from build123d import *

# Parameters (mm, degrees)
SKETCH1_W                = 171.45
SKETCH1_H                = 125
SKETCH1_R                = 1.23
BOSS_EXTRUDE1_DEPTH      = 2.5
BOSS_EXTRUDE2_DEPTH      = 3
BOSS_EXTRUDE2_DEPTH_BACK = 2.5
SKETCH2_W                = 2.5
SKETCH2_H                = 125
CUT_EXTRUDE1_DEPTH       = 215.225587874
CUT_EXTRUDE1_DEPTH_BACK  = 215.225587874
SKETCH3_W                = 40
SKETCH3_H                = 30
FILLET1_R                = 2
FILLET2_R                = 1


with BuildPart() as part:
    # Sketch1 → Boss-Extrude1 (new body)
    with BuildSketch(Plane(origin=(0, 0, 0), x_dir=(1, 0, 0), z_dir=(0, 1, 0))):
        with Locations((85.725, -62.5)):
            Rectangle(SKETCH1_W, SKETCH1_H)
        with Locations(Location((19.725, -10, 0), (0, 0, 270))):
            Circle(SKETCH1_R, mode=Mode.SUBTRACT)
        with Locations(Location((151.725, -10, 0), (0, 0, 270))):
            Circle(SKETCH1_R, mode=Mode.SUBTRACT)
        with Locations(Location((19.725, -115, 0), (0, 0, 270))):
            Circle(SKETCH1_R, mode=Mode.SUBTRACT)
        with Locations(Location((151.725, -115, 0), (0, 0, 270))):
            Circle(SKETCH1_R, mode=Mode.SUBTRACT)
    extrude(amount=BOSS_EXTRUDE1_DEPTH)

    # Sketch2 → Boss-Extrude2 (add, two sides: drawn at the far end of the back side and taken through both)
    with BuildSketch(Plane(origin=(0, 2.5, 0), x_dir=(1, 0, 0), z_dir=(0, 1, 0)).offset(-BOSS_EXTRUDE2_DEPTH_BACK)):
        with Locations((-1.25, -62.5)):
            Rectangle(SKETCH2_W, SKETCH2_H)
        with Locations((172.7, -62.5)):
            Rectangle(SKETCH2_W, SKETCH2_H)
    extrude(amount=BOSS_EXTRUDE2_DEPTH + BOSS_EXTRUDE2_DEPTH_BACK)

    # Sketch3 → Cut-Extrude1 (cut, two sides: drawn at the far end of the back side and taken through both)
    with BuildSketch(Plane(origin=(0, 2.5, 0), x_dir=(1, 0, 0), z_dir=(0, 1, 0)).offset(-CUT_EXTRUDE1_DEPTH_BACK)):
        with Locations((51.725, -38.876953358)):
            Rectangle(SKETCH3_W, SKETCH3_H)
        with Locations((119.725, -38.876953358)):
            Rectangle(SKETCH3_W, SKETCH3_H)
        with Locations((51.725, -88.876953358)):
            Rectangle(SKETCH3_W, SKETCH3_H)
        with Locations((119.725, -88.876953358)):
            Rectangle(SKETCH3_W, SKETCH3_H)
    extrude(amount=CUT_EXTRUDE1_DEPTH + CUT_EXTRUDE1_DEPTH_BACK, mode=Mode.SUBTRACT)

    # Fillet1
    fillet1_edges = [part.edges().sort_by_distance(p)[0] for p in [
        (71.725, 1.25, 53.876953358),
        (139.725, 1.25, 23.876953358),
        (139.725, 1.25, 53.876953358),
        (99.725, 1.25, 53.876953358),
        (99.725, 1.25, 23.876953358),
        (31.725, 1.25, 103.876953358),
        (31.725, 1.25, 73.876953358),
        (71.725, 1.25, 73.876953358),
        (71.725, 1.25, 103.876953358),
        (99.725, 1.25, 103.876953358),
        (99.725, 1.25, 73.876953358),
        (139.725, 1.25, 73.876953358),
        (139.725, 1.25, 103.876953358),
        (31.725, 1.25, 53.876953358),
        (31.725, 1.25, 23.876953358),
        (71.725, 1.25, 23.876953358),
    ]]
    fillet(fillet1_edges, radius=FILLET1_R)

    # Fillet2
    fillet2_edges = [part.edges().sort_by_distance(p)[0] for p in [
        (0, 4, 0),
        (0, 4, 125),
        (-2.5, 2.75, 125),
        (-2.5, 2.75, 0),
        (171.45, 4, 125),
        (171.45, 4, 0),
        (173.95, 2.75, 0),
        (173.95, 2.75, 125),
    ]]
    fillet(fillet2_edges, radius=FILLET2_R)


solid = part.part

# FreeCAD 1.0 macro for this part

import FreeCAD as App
import Part
import Sketcher

V = App.Vector
Q = App.Units.Quantity


def edges_at(feature, points):
    """Names of the edges that pass closest to the given points."""
    edges = feature.Shape.Edges
    near = lambda p: min(range(len(edges)), key=lambda i: edges[i].distToShape(Part.Vertex(*p))[0])
    return sorted({f"Edge{near(p) + 1}" for p in points})

doc = App.newDocument("Part")
body = doc.addObject("PartDesign::Body", "Body")

# Sketch on XZ plane
sketch1 = body.newObject("Sketcher::SketchObject", "Sketch")
sketch1.AttachmentSupport = (doc.getObject("XZ_Plane"), [""])
sketch1.MapMode = "FlatFace"
sketch1.addGeometry(Part.LineSegment(V(0, 0, 0), V(0, 125, 0)), False)
sketch1.addGeometry(Part.LineSegment(V(0, 125, 0), V(171.4, 125, 0)), False)
sketch1.addGeometry(Part.LineSegment(V(171.4, 125, 0), V(171.4, 0, 0)), False)
sketch1.addGeometry(Part.LineSegment(V(171.4, 0, 0), V(0, 0, 0)), False)
sketch1.addGeometry(Part.Circle(V(19.7, 115, 0), V(0, 0, 1), 1.2), False)
sketch1.addGeometry(Part.Circle(V(151.7, 115, 0), V(0, 0, 1), 1.2), False)
sketch1.addGeometry(Part.Circle(V(19.7, 10, 0), V(0, 0, 1), 1.2), False)
sketch1.addGeometry(Part.Circle(V(151.7, 10, 0), V(0, 0, 1), 1.2), False)
sketch1.addConstraint(Sketcher.Constraint("Coincident", 0, 2, 1, 1))
sketch1.addConstraint(Sketcher.Constraint("Coincident", 1, 2, 2, 1))
sketch1.addConstraint(Sketcher.Constraint("Coincident", 2, 2, 3, 1))
sketch1.addConstraint(Sketcher.Constraint("Coincident", 3, 2, 0, 1))
sketch1.addConstraint(Sketcher.Constraint("Vertical", 0))
sketch1.addConstraint(Sketcher.Constraint("Horizontal", 1))
sketch1.addConstraint(Sketcher.Constraint("Vertical", 2))
sketch1.addConstraint(Sketcher.Constraint("Horizontal", 3))
sketch1.addConstraint(Sketcher.Constraint("Coincident", 3, 2, -1, 1))
sketch1.addConstraint(Sketcher.Constraint("Equal", 4, 5))
sketch1.addConstraint(Sketcher.Constraint("Equal", 5, 6))
sketch1.addConstraint(Sketcher.Constraint("Equal", 6, 7))
sketch1.addConstraint(Sketcher.Constraint("Horizontal", 4, 3, 5, 3))
sketch1.addConstraint(Sketcher.Constraint("Horizontal", 6, 3, 7, 3))
sketch1.addConstraint(Sketcher.Constraint("Vertical", 4, 3, 6, 3))
sketch1.addConstraint(Sketcher.Constraint("Vertical", 5, 3, 7, 3))
sketch1.addConstraint(Sketcher.Constraint("Diameter", 4, Q("2.46 mm")))
sketch1.addConstraint(Sketcher.Constraint("DistanceY", 0, 1, 0, 2, Q("125 mm")))
sketch1.addConstraint(Sketcher.Constraint("DistanceY", -1, 1, 4, 3, Q("115 mm")))
sketch1.addConstraint(Sketcher.Constraint("DistanceY", -1, 1, 6, 3, Q("10 mm")))
sketch1.addConstraint(Sketcher.Constraint("DistanceX", 4, 3, 5, 3, Q("132 mm")))
sketch1.addConstraint(Sketcher.Constraint("DistanceX", 1, 1, 1, 2, Q("171.45 mm")))
sketch1.addConstraint(Sketcher.Constraint("DistanceX", -1, 1, 4, 3, Q("19.725 mm")))
pad1 = body.newObject("PartDesign::Pad", "Pad")
pad1.Profile = sketch1
pad1.Length = 2.5
pad1.Reversed = True

# Sketch on XZ plane
sketch2 = body.newObject("Sketcher::SketchObject", "Sketch001")
sketch2.AttachmentSupport = (doc.getObject("XZ_Plane"), [""])
sketch2.MapMode = "FlatFace"
sketch2.AttachmentOffset = App.Placement(V(0, 0, -2.5), App.Rotation())
sketch2.addGeometry(Part.LineSegment(V(-2.5, 0, 0), V(-2.5, 125, 0)), False)
sketch2.addGeometry(Part.LineSegment(V(-2.5, 125, 0), V(0, 125, 0)), False)
sketch2.addGeometry(Part.LineSegment(V(0, 125, 0), V(0, 0, 0)), False)
sketch2.addGeometry(Part.LineSegment(V(0, 0, 0), V(-2.5, 0, 0)), False)
sketch2.addGeometry(Part.LineSegment(V(171.4, 0, 0), V(171.4, 125, 0)), False)
sketch2.addGeometry(Part.LineSegment(V(171.4, 125, 0), V(173.9, 125, 0)), False)
sketch2.addGeometry(Part.LineSegment(V(173.9, 125, 0), V(173.9, 0, 0)), False)
sketch2.addGeometry(Part.LineSegment(V(173.9, 0, 0), V(171.4, 0, 0)), False)
sketch2.addConstraint(Sketcher.Constraint("Coincident", 0, 2, 1, 1))
sketch2.addConstraint(Sketcher.Constraint("Coincident", 1, 2, 2, 1))
sketch2.addConstraint(Sketcher.Constraint("Coincident", 2, 2, 3, 1))
sketch2.addConstraint(Sketcher.Constraint("Coincident", 3, 2, 0, 1))
sketch2.addConstraint(Sketcher.Constraint("Coincident", 4, 2, 5, 1))
sketch2.addConstraint(Sketcher.Constraint("Coincident", 5, 2, 6, 1))
sketch2.addConstraint(Sketcher.Constraint("Coincident", 6, 2, 7, 1))
sketch2.addConstraint(Sketcher.Constraint("Coincident", 7, 2, 4, 1))
sketch2.addConstraint(Sketcher.Constraint("Vertical", 0))
sketch2.addConstraint(Sketcher.Constraint("Horizontal", 1))
sketch2.addConstraint(Sketcher.Constraint("Vertical", 2))
sketch2.addConstraint(Sketcher.Constraint("Horizontal", 3))
sketch2.addConstraint(Sketcher.Constraint("Vertical", 4))
sketch2.addConstraint(Sketcher.Constraint("Horizontal", 5))
sketch2.addConstraint(Sketcher.Constraint("Vertical", 6))
sketch2.addConstraint(Sketcher.Constraint("Horizontal", 7))
sketch2.addConstraint(Sketcher.Constraint("Coincident", 2, 2, -1, 1))
sketch2.addConstraint(Sketcher.Constraint("PointOnObject", 6, 2, -1))
sketch2.addConstraint(Sketcher.Constraint("Horizontal", 1, 2, 4, 2))
sketch2.addConstraint(Sketcher.Constraint("Equal", 3, 5))
sketch2.addConstraint(Sketcher.Constraint("DistanceY", 0, 1, 0, 2, Q("125 mm")))
sketch2.addConstraint(Sketcher.Constraint("DistanceX", 1, 1, 1, 2, Q("2.5 mm")))
sketch2.addConstraint(Sketcher.Constraint("DistanceX", -1, 1, 4, 2, Q("171.45 mm")))
pad2 = body.newObject("PartDesign::Pad", "Pad001")
pad2.Profile = sketch2
pad2.Type = "TwoLengths"
pad2.Length = 3
pad2.Length2 = 2.5
pad2.Reversed = True

# Sketch on XZ plane
sketch3 = body.newObject("Sketcher::SketchObject", "Sketch002")
sketch3.AttachmentSupport = (doc.getObject("XZ_Plane"), [""])
sketch3.MapMode = "FlatFace"
sketch3.AttachmentOffset = App.Placement(V(0, 0, -2.5), App.Rotation())
sketch3.addGeometry(Part.LineSegment(V(32, 24, 0), V(32, 54, 0)), False)
sketch3.addGeometry(Part.LineSegment(V(32, 54, 0), V(72, 54, 0)), False)
sketch3.addGeometry(Part.LineSegment(V(72, 54, 0), V(72, 24, 0)), False)
sketch3.addGeometry(Part.LineSegment(V(72, 24, 0), V(32, 24, 0)), False)
sketch3.addGeometry(Part.LineSegment(V(100, 24, 0), V(100, 54, 0)), False)
sketch3.addGeometry(Part.LineSegment(V(100, 54, 0), V(140, 54, 0)), False)
sketch3.addGeometry(Part.LineSegment(V(140, 54, 0), V(140, 24, 0)), False)
sketch3.addGeometry(Part.LineSegment(V(140, 24, 0), V(100, 24, 0)), False)
sketch3.addGeometry(Part.LineSegment(V(32, 74, 0), V(32, 104, 0)), False)
sketch3.addGeometry(Part.LineSegment(V(32, 104, 0), V(72, 104, 0)), False)
sketch3.addGeometry(Part.LineSegment(V(72, 104, 0), V(72, 74, 0)), False)
sketch3.addGeometry(Part.LineSegment(V(72, 74, 0), V(32, 74, 0)), False)
sketch3.addGeometry(Part.LineSegment(V(100, 74, 0), V(100, 104, 0)), False)
sketch3.addGeometry(Part.LineSegment(V(100, 104, 0), V(140, 104, 0)), False)
sketch3.addGeometry(Part.LineSegment(V(140, 104, 0), V(140, 74, 0)), False)
sketch3.addGeometry(Part.LineSegment(V(140, 74, 0), V(100, 74, 0)), False)
sketch3.addConstraint(Sketcher.Constraint("Coincident", 0, 2, 1, 1))
sketch3.addConstraint(Sketcher.Constraint("Coincident", 1, 2, 2, 1))
sketch3.addConstraint(Sketcher.Constraint("Coincident", 2, 2, 3, 1))
sketch3.addConstraint(Sketcher.Constraint("Coincident", 3, 2, 0, 1))
sketch3.addConstraint(Sketcher.Constraint("Coincident", 4, 2, 5, 1))
sketch3.addConstraint(Sketcher.Constraint("Coincident", 5, 2, 6, 1))
sketch3.addConstraint(Sketcher.Constraint("Coincident", 6, 2, 7, 1))
sketch3.addConstraint(Sketcher.Constraint("Coincident", 7, 2, 4, 1))
sketch3.addConstraint(Sketcher.Constraint("Coincident", 8, 2, 9, 1))
sketch3.addConstraint(Sketcher.Constraint("Coincident", 9, 2, 10, 1))
sketch3.addConstraint(Sketcher.Constraint("Coincident", 10, 2, 11, 1))
sketch3.addConstraint(Sketcher.Constraint("Coincident", 11, 2, 8, 1))
sketch3.addConstraint(Sketcher.Constraint("Coincident", 12, 2, 13, 1))
sketch3.addConstraint(Sketcher.Constraint("Coincident", 13, 2, 14, 1))
sketch3.addConstraint(Sketcher.Constraint("Coincident", 14, 2, 15, 1))
sketch3.addConstraint(Sketcher.Constraint("Coincident", 15, 2, 12, 1))
sketch3.addConstraint(Sketcher.Constraint("Vertical", 0))
sketch3.addConstraint(Sketcher.Constraint("Horizontal", 1))
sketch3.addConstraint(Sketcher.Constraint("Vertical", 2))
sketch3.addConstraint(Sketcher.Constraint("Horizontal", 3))
sketch3.addConstraint(Sketcher.Constraint("Vertical", 4))
sketch3.addConstraint(Sketcher.Constraint("Horizontal", 5))
sketch3.addConstraint(Sketcher.Constraint("Vertical", 6))
sketch3.addConstraint(Sketcher.Constraint("Horizontal", 7))
sketch3.addConstraint(Sketcher.Constraint("Vertical", 8))
sketch3.addConstraint(Sketcher.Constraint("Horizontal", 9))
sketch3.addConstraint(Sketcher.Constraint("Vertical", 10))
sketch3.addConstraint(Sketcher.Constraint("Horizontal", 11))
sketch3.addConstraint(Sketcher.Constraint("Vertical", 12))
sketch3.addConstraint(Sketcher.Constraint("Horizontal", 13))
sketch3.addConstraint(Sketcher.Constraint("Vertical", 14))
sketch3.addConstraint(Sketcher.Constraint("Horizontal", 15))
sketch3.addConstraint(Sketcher.Constraint("Horizontal", 1, 2, 4, 2))
sketch3.addConstraint(Sketcher.Constraint("Horizontal", 3, 2, 6, 2))
sketch3.addConstraint(Sketcher.Constraint("Horizontal", 9, 2, 12, 2))
sketch3.addConstraint(Sketcher.Constraint("Horizontal", 11, 2, 14, 2))
sketch3.addConstraint(Sketcher.Constraint("Vertical", 3, 2, 8, 2))
sketch3.addConstraint(Sketcher.Constraint("Vertical", 2, 2, 9, 2))
sketch3.addConstraint(Sketcher.Constraint("Vertical", 7, 2, 12, 2))
sketch3.addConstraint(Sketcher.Constraint("Vertical", 6, 2, 13, 2))
sketch3.addConstraint(Sketcher.Constraint("Equal", 3, 5))
sketch3.addConstraint(Sketcher.Constraint("Equal", 6, 8))
sketch3.addConstraint(Sketcher.Constraint("DistanceX", 1, 1, 1, 2, Q("40 mm")))
sketch3.addConstraint(Sketcher.Constraint("DistanceY", 0, 1, 0, 2, Q("30 mm")))
sketch3.addConstraint(Sketcher.Constraint("DistanceX", 1, 2, 4, 2, Q("28 mm")))
sketch3.addConstraint(Sketcher.Constraint("DistanceY", 0, 2, 8, 2, Q("50 mm")))
sketch3.addConstraint(Sketcher.Constraint("DistanceX", -1, 1, 0, 2, Q("31.725 mm")))
sketch3.addConstraint(Sketcher.Constraint("DistanceY", -1, 1, 0, 2, Q("53.876953 mm")))
pocket1 = body.newObject("PartDesign::Pocket", "Pocket")
pocket1.Profile = sketch3
pocket1.Type = "ThroughAll"
pocket1.Midplane = True
doc.recompute()

fillet = body.newObject("PartDesign::Fillet", "Fillet")
fillet.Base = (pocket1, edges_at(pocket1, [
    (71.725, 1.25, 53.877),
    (139.725, 1.25, 23.877),
    (139.725, 1.25, 53.877),
    (99.725, 1.25, 53.877),
    (99.725, 1.25, 23.877),
    (31.725, 1.25, 103.877),
    (31.725, 1.25, 73.877),
    (71.725, 1.25, 73.877),
    (71.725, 1.25, 103.877),
    (99.725, 1.25, 103.877),
    (99.725, 1.25, 73.877),
    (139.725, 1.25, 73.877),
    (139.725, 1.25, 103.877),
    (31.725, 1.25, 53.877),
    (31.725, 1.25, 23.877),
    (71.725, 1.25, 23.877),
]))
fillet.Radius = 2
doc.recompute()

fillet2 = body.newObject("PartDesign::Fillet", "Fillet001")
fillet2.Base = (fillet, edges_at(fillet, [
    (0, 4, 0),
    (0, 4, 125),
    (-2.5, 2.75, 125),
    (-2.5, 2.75, 0),
    (171.45, 4, 125),
    (171.45, 4, 0),
    (173.95, 2.75, 0),
    (173.95, 2.75, 125),
]))
fillet2.Radius = 1

doc.recompute()
